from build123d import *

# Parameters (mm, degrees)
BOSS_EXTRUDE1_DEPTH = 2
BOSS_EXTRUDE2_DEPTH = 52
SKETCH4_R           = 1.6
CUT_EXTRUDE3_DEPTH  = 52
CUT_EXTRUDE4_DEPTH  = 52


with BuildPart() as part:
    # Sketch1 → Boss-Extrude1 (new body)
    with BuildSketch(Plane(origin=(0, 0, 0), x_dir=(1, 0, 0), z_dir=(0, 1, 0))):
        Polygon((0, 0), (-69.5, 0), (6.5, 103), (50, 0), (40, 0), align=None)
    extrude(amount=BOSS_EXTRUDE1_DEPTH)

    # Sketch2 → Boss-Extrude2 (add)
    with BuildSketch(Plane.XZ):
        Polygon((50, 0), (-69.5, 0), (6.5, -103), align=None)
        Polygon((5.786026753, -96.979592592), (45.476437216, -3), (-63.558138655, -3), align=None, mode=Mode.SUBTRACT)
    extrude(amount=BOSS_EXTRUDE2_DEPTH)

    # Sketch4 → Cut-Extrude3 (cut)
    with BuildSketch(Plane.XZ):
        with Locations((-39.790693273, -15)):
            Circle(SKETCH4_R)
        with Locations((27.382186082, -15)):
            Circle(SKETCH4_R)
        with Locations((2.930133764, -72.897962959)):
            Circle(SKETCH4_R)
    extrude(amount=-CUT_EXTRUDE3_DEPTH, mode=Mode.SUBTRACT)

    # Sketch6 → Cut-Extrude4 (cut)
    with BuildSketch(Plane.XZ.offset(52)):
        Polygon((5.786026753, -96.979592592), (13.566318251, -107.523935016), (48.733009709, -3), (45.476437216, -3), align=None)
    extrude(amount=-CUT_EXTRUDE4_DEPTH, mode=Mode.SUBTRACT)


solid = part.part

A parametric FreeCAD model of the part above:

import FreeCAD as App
import Part
import Sketcher

V = App.Vector


def add_polygon(sketch, points):
    """Adds a closed chain of lines whose ends are joined by coincident constraints."""
    first, n = sketch.GeometryCount, len(points)
    for a, b in zip(points, points[1:] + points[:1]):
        sketch.addGeometry(Part.LineSegment(App.Vector(*a, 0), App.Vector(*b, 0)), False)
    for i in range(n):
        sketch.addConstraint(Sketcher.Constraint("Coincident", first + i, 2, first + (i + 1) % n, 1))

doc = App.newDocument("Part")
body = doc.addObject("PartDesign::Body", "Body")

sketch1 = body.newObject("Sketcher::SketchObject", "Sketch")
sketch1.AttachmentSupport = (doc.getObject("XZ_Plane"), [""])
sketch1.MapMode = "FlatFace"
add_polygon(sketch1, [(-70, 0), (50, 0), (6, -103)])
sketch1.addConstraint(Sketcher.Constraint("Horizontal", 0))
sketch1.addConstraint(Sketcher.Constraint("PointOnObject", 0, 2, -1))
sketch1.addConstraint(Sketcher.Constraint("DistanceX", 0, 1, 0, 2, 119.5))
sketch1.addConstraint(Sketcher.Constraint("DistanceX", -1, 1, 0, 2, 50.0))
sketch1.addConstraint(Sketcher.Constraint("DistanceY", 1, 2, -1, 1, 103.0))
sketch1.addConstraint(Sketcher.Constraint("DistanceX", 2, 2, 1, 2, 76.0))
pad1 = body.newObject("PartDesign::Pad", "Pad")
pad1.Profile = sketch1
pad1.Length = 2
pad1.Reversed = True

sketch2 = body.newObject("Sketcher::SketchObject", "Sketch001")
sketch2.AttachmentSupport = (doc.getObject("XZ_Plane"), [""])
sketch2.MapMode = "FlatFace"
add_polygon(sketch2, [(50, 0), (-70, 0), (6, -103)])
add_polygon(sketch2, [(45, -3), (6, -97), (-64, -3)])
sketch2.addConstraint(Sketcher.Constraint("Horizontal", 0))
sketch2.addConstraint(Sketcher.Constraint("Horizontal", 5))
sketch2.addConstraint(Sketcher.Constraint("PointOnObject", 0, 2, -1))
sketch2.addConstraint(Sketcher.Constraint("Parallel", 2, 3))
sketch2.addConstraint(Sketcher.Constraint("Parallel", 1, 4))
sketch2.addConstraint(Sketcher.Constraint("DistanceX", 0, 2, 0, 1, 119.5))
sketch2.addConstraint(Sketcher.Constraint("DistanceY", 1, 2, -1, 1, 103.0))
sketch2.addConstraint(Sketcher.Constraint("DistanceX", -1, 1, 2, 2, 50.0))
sketch2.addConstraint(Sketcher.Constraint("DistanceY", 4, 2, -1, 1, 3.0))
sketch2.addConstraint(Sketcher.Constraint("DistanceX", 0, 2, 1, 2, 76.0))
sketch2.addConstraint(Sketcher.Constraint("Distance", 3, 102.017119))
sketch2.addConstraint(Sketcher.Constraint("DistanceX", 4, 2, -1, 1, 63.558139))
pad2 = body.newObject("PartDesign::Pad", "Pad001")
pad2.Profile = sketch2
pad2.Length = 52

sketch3 = body.newObject("Sketcher::SketchObject", "Sketch002")
sketch3.AttachmentSupport = (doc.getObject("XZ_Plane"), [""])
sketch3.MapMode = "FlatFace"
sketch3.addGeometry(Part.Circle(V(-39.8, -15, 0), V(0, 0, 1), 1.6), False)
sketch3.addGeometry(Part.Circle(V(27.4, -15, 0), V(0, 0, 1), 1.6), False)
sketch3.addGeometry(Part.Circle(V(2.9, -72.9, 0), V(0, 0, 1), 1.6), False)
sketch3.addConstraint(Sketcher.Constraint("Equal", 0, 1))
sketch3.addConstraint(Sketcher.Constraint("Equal", 1, 2))
sketch3.addConstraint(Sketcher.Constraint("Horizontal", 0, 3, 1, 3))
sketch3.addConstraint(Sketcher.Constraint("Diameter", 0, 3.2))
sketch3.addConstraint(Sketcher.Constraint("DistanceY", 0, 3, -1, 1, 15.0))
sketch3.addConstraint(Sketcher.Constraint("DistanceX", 0, 3, 1, 3, 67.172879))
sketch3.addConstraint(Sketcher.Constraint("DistanceX", 0, 3, -1, 1, 39.790693))
sketch3.addConstraint(Sketcher.Constraint("DistanceX", -1, 1, 2, 3, 2.930134))
sketch3.addConstraint(Sketcher.Constraint("DistanceY", 2, 3, -1, 1, 72.897963))
pocket1 = body.newObject("PartDesign::Pocket", "Pocket")
pocket1.Profile = sketch3
pocket1.Length = 52

sketch4 = body.newObject("Sketcher::SketchObject", "Sketch003")
sketch4.AttachmentSupport = (doc.getObject("XZ_Plane"), [""])
sketch4.MapMode = "FlatFace"
sketch4.AttachmentOffset = App.Placement(V(0, 0, 52), App.Rotation())
add_polygon(sketch4, [(5.8, -97), (13.6, -107.5), (48.7, -3), (45.5, -3)])
sketch4.addConstraint(Sketcher.Constraint("Horizontal", 2))
sketch4.addConstraint(Sketcher.Constraint("DistanceY", 1, 2, -1, 1, 3.0))
sketch4.addConstraint(Sketcher.Constraint("Distance", 0, 13.104049))
sketch4.addConstraint(Sketcher.Constraint("Distance", 3, 102.017119))
sketch4.addConstraint(Sketcher.Constraint("DistanceX", 2, 2, 2, 1, 3.256572))
sketch4.addConstraint(Sketcher.Constraint("DistanceX", -1, 1, 0, 2, 13.566318))
sketch4.addConstraint(Sketcher.Constraint("DistanceX", -1, 1, 1, 2, 48.73301))
sketch4.addConstraint(Sketcher.Constraint("DistanceX", 3, 2, 0, 2, 7.780291))
pocket2 = body.newObject("PartDesign::Pocket", "Pocket001")
pocket2.Profile = sketch4
pocket2.Length = 52

doc.recompute()
